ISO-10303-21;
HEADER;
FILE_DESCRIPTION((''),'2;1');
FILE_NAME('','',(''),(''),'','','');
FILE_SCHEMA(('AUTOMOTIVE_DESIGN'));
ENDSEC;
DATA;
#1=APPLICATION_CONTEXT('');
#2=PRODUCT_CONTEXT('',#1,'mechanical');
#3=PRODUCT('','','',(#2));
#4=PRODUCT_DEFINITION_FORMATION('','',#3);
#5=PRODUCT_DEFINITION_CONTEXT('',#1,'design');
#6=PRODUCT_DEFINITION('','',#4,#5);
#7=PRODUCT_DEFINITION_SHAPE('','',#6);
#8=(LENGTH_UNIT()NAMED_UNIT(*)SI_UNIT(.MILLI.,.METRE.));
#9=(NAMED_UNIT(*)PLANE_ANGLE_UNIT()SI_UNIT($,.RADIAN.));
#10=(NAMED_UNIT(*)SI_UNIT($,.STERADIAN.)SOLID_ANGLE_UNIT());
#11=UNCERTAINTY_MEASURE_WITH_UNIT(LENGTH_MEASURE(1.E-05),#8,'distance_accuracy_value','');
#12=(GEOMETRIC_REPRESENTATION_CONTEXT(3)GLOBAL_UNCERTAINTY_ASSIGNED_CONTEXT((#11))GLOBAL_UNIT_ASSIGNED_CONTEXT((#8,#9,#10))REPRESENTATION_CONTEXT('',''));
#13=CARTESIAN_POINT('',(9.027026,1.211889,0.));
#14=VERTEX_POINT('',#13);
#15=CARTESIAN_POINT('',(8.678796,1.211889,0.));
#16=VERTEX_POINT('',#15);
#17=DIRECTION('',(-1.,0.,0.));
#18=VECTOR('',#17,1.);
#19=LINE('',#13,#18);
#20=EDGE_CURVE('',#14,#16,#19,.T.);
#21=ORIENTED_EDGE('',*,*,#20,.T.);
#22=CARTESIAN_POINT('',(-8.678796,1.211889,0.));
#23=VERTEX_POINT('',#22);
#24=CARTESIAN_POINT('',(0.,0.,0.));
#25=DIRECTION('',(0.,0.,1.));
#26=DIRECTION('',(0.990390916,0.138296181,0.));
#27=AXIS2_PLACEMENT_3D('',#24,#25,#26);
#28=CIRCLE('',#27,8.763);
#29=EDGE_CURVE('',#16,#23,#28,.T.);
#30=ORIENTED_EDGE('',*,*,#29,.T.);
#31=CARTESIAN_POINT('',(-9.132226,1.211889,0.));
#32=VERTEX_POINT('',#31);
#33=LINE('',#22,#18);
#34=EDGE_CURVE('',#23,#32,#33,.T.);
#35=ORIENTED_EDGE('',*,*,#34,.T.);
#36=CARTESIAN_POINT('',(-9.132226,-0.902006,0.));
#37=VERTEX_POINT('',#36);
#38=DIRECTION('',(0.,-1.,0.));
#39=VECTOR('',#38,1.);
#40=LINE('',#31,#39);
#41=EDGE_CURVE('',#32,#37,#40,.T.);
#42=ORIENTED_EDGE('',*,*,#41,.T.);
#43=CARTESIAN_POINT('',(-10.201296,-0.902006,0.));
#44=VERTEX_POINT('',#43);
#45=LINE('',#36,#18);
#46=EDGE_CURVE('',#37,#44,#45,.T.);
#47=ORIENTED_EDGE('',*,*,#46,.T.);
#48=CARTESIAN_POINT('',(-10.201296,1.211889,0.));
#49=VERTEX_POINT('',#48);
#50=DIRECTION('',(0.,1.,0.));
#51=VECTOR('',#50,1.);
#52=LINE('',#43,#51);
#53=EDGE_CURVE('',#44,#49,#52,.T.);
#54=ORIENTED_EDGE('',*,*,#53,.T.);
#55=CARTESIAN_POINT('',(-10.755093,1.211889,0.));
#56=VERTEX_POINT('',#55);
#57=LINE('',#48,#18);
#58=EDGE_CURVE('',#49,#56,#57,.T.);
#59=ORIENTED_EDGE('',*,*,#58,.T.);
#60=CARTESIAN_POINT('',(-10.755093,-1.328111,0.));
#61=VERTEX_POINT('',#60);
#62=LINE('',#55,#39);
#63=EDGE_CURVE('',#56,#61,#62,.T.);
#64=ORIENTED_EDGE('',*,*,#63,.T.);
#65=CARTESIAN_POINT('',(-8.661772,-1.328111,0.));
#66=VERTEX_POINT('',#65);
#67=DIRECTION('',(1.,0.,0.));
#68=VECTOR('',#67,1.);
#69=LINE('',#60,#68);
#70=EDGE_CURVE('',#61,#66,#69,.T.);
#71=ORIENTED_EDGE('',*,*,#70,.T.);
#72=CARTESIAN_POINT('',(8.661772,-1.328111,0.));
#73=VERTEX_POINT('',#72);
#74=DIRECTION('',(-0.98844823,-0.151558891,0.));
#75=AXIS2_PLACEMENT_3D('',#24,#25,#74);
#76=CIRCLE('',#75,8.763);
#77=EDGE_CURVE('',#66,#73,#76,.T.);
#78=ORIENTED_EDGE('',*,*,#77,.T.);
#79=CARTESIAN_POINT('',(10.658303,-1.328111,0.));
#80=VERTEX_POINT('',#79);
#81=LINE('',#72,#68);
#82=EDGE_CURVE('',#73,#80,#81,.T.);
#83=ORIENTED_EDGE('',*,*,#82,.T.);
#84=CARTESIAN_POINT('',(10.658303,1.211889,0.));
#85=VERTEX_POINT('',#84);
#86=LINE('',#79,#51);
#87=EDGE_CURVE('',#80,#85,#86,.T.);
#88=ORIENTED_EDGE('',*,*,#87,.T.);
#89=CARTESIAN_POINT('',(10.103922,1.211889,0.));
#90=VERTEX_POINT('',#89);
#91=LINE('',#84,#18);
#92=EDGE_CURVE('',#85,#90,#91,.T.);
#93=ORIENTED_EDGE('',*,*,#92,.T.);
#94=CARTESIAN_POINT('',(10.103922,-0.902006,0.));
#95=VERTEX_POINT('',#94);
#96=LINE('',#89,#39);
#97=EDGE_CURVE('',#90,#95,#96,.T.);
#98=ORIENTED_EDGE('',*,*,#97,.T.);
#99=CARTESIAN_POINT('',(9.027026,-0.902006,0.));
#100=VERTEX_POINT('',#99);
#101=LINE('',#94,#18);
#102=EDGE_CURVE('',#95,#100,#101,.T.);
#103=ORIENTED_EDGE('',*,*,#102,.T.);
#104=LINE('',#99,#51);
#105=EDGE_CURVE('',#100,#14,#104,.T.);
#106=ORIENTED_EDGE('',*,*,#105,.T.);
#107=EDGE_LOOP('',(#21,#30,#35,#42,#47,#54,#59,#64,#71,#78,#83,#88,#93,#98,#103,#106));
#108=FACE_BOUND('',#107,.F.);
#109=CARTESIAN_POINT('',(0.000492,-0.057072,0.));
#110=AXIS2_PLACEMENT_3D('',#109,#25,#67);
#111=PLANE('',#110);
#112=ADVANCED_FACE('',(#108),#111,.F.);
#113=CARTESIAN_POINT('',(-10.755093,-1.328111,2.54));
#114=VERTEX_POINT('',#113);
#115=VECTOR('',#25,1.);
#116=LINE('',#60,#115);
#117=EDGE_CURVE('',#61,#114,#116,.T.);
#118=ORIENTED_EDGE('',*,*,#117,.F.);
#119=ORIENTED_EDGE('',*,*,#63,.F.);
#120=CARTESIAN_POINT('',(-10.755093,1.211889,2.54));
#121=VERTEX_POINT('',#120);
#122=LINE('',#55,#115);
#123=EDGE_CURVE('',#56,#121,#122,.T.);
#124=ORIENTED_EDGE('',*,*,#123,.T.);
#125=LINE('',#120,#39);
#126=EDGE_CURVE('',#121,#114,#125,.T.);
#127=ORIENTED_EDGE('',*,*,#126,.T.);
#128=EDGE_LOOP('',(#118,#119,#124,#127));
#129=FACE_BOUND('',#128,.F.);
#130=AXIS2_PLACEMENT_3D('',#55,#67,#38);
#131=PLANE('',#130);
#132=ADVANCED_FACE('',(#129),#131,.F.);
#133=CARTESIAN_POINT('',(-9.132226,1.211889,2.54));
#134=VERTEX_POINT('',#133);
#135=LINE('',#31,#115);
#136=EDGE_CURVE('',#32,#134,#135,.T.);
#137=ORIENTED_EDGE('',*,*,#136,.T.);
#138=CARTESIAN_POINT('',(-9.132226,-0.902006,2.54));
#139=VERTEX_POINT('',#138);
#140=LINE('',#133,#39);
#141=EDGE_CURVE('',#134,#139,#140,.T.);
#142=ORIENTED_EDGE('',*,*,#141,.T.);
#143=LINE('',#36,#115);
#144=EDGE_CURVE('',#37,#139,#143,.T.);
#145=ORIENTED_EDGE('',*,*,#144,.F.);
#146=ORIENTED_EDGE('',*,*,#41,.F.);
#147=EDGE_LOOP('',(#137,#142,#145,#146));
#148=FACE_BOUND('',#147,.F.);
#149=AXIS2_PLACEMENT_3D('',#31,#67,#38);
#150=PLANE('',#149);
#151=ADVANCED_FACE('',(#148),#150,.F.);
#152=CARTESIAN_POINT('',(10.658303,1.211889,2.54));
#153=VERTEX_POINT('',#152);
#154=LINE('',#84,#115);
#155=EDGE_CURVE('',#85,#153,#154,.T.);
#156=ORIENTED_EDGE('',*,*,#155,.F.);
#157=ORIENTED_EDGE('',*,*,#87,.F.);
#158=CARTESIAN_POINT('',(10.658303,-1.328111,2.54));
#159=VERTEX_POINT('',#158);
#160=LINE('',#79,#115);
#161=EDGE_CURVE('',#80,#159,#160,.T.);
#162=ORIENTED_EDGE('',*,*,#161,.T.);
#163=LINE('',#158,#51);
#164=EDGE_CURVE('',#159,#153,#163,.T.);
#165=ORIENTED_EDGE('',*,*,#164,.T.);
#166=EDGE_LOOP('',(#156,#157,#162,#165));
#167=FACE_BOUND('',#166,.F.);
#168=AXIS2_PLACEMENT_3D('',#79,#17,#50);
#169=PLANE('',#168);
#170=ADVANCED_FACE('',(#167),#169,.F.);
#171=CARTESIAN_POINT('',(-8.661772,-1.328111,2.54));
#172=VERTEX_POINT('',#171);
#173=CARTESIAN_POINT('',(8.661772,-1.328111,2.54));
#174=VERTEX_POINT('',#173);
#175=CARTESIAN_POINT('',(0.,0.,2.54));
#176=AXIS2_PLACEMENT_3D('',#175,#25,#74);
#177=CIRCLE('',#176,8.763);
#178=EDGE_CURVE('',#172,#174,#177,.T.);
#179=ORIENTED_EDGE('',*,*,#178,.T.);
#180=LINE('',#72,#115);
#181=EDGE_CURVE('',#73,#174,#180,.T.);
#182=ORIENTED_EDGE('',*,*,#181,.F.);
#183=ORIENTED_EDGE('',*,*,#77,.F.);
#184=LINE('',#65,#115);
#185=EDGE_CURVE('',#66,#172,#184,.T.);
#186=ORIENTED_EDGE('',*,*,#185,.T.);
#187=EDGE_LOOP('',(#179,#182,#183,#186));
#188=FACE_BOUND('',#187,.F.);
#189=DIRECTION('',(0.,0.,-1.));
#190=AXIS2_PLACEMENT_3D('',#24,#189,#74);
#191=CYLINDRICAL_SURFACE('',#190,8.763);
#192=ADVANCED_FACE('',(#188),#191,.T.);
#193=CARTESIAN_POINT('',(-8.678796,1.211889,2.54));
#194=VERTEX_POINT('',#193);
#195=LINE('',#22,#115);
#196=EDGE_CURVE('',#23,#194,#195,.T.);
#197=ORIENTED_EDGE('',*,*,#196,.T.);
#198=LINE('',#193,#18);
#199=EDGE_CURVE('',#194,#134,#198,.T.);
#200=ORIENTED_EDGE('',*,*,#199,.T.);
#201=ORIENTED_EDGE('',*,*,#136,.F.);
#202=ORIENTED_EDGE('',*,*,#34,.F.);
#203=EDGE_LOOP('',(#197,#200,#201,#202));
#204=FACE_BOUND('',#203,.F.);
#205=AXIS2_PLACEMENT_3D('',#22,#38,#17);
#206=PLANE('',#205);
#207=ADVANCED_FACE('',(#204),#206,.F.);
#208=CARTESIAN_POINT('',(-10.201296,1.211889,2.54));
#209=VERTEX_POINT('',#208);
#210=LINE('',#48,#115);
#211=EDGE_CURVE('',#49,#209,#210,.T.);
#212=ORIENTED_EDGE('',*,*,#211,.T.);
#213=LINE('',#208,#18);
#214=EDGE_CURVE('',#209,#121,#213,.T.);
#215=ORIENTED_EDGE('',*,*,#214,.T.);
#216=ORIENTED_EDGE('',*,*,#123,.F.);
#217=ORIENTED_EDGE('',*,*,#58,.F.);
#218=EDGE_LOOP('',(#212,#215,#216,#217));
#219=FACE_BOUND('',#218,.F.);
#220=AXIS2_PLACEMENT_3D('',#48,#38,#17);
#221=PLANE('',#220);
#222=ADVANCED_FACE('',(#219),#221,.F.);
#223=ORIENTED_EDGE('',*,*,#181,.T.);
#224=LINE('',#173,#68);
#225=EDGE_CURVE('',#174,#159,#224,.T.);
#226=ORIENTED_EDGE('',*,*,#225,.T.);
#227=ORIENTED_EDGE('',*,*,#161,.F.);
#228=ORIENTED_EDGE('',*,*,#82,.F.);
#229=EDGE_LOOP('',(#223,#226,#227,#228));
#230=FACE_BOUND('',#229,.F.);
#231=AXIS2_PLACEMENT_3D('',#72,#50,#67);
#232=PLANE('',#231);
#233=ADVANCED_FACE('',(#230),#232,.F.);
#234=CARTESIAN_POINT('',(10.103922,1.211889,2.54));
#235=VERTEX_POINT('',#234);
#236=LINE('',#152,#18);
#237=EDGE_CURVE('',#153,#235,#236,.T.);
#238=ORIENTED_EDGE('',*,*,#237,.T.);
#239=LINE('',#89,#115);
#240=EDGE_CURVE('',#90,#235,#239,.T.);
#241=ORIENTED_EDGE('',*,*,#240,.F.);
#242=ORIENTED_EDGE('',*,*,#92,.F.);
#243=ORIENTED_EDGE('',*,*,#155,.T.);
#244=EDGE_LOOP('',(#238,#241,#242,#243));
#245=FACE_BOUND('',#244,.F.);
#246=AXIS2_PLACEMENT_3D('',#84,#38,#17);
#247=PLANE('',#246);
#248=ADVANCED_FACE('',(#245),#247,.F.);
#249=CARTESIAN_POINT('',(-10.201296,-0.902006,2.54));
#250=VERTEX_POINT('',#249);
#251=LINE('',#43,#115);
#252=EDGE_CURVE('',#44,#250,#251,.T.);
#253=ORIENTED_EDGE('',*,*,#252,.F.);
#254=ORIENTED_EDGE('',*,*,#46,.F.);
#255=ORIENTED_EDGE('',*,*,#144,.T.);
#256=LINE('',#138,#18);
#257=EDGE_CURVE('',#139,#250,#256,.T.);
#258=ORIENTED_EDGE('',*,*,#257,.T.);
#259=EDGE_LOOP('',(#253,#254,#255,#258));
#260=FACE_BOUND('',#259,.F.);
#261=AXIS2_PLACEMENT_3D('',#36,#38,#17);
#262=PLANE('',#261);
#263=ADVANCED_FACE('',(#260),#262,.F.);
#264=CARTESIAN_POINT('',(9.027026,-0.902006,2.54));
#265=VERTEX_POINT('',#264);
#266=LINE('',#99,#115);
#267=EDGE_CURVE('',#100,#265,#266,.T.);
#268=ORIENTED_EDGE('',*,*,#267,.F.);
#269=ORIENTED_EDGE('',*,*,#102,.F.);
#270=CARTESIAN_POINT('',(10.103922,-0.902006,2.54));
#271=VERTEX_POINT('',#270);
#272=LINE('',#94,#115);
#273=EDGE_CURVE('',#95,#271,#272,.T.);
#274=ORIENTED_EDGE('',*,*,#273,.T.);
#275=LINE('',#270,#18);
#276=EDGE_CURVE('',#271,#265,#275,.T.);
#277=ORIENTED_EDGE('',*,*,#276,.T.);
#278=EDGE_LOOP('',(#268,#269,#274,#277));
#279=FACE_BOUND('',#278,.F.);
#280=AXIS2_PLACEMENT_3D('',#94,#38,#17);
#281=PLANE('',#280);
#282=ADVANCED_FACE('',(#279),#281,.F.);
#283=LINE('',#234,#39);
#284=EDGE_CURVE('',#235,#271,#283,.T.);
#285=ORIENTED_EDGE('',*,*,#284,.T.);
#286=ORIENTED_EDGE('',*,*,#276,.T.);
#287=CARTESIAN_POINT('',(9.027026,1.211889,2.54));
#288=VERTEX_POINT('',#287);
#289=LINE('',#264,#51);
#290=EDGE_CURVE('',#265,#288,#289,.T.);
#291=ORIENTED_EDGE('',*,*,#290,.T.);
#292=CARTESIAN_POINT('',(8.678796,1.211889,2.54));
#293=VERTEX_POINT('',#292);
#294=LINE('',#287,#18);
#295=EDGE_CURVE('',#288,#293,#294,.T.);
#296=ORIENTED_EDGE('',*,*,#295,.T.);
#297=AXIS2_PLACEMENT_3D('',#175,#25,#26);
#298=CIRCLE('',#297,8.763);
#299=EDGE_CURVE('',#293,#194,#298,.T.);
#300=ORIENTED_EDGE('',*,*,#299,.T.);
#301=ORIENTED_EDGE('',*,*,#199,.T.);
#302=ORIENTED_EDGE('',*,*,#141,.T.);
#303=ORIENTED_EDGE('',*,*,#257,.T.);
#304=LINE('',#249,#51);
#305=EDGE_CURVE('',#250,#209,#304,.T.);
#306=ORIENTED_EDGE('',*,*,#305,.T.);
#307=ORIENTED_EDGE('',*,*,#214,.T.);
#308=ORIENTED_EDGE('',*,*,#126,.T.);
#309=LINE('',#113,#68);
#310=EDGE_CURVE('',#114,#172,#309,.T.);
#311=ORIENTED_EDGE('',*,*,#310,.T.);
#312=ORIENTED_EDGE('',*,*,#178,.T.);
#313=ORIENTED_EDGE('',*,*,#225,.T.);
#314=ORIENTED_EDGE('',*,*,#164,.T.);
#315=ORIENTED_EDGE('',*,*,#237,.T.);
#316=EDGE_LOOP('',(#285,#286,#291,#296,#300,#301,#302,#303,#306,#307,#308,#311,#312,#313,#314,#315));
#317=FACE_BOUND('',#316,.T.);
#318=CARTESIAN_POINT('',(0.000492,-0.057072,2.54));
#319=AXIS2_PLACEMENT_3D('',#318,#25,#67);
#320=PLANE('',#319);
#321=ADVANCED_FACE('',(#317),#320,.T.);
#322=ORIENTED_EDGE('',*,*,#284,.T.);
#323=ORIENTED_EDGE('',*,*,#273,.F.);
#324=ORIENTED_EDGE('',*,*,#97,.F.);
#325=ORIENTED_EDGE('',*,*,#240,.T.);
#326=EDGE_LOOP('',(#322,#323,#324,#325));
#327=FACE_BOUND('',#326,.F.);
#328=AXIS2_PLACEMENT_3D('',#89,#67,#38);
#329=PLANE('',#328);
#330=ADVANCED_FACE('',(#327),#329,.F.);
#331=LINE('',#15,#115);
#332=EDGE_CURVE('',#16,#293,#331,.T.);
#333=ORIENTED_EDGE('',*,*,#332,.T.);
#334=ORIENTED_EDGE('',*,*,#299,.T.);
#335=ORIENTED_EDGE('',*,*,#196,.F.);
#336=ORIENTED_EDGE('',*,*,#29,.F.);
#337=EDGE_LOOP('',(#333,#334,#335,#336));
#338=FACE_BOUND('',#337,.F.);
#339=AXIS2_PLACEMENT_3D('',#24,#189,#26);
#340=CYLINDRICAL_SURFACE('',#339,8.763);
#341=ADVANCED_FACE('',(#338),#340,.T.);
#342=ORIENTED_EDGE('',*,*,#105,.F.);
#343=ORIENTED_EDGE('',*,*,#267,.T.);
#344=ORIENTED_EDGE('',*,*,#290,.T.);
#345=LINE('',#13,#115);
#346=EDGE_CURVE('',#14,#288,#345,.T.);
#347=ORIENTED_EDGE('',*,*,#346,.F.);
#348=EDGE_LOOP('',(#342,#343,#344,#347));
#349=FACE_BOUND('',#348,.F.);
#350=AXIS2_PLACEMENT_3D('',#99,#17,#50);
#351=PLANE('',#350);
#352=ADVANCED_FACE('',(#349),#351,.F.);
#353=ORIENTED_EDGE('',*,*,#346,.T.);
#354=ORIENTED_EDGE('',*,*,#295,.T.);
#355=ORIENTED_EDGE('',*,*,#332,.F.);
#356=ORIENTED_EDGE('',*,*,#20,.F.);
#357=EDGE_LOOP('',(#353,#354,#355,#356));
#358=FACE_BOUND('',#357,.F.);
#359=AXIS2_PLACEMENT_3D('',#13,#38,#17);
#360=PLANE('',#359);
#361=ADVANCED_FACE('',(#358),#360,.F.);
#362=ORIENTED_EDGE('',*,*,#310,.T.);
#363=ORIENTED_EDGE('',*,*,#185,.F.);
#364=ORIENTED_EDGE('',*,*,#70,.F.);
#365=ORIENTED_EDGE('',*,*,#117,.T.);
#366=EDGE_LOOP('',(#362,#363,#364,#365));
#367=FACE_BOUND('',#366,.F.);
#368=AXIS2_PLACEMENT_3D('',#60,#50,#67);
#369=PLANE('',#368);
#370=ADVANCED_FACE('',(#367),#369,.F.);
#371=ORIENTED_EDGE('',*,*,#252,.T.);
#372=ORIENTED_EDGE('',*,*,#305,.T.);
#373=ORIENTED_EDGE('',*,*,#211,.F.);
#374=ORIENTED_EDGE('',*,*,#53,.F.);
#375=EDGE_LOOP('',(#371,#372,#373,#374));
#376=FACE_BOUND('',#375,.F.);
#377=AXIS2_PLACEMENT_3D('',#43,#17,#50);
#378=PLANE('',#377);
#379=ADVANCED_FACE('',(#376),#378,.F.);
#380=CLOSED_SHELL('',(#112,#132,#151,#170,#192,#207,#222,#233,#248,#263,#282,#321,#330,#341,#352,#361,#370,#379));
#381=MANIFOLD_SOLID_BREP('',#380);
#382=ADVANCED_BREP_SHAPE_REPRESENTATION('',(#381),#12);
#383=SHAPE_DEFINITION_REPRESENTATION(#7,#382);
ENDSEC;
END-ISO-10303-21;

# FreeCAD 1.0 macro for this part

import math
import FreeCAD as App
import Part
import Sketcher
Q = App.Units.Quantity

doc = App.newDocument("Part")
params = doc.addObject("Spreadsheet::Sheet", "Params")
for row, (alias, value) in enumerate([
    ("sketch1_height", "0.1 in"),
    ("sketch1_radius", "0.345 in"),
    ("pad1_length", "0.1 in"),
], start=1):
    params.set(f"A{row}", alias)
    params.set(f"B{row}", "=" + value)
    params.setAlias(f"B{row}", alias)

body = doc.addObject("PartDesign::Body", "Body")

sketch1 = doc.addObject("Sketcher::SketchObject", "Sketch")
body.addObject(sketch1)
sketch1.AttachmentSupport = (doc.XY_Plane, [""])
sketch1.MapMode = "FlatFace"
sketch1.addGeometry(Part.ArcOfCircle(Part.Circle(App.Vector(0, 0, 0), App.Vector(0, 0, 1), 8.76), math.radians(8), math.radians(172)), False)
sketch1.addGeometry(Part.LineSegment(App.Vector(-8.68, 1.21, 0), App.Vector(-9.13, 1.21, 0)), False)
sketch1.addGeometry(Part.LineSegment(App.Vector(-9.13, 1.21, 0), App.Vector(-9.13, -0.9, 0)), False)
sketch1.addGeometry(Part.LineSegment(App.Vector(-9.13, -0.9, 0), App.Vector(-10.2, -0.9, 0)), False)
sketch1.addGeometry(Part.LineSegment(App.Vector(-10.2, -0.9, 0), App.Vector(-10.2, 1.21, 0)), False)
sketch1.addGeometry(Part.LineSegment(App.Vector(-10.2, 1.21, 0), App.Vector(-10.76, 1.21, 0)), False)
sketch1.addGeometry(Part.LineSegment(App.Vector(-10.76, 1.21, 0), App.Vector(-10.76, -1.33, 0)), False)
sketch1.addGeometry(Part.LineSegment(App.Vector(-10.76, -1.33, 0), App.Vector(-8.66, -1.33, 0)), False)
sketch1.addGeometry(Part.ArcOfCircle(Part.Circle(App.Vector(0, 0, 0), App.Vector(0, 0, 1), 8.76), math.radians(-171), math.radians(-9)), False)
sketch1.addGeometry(Part.LineSegment(App.Vector(8.66, -1.33, 0), App.Vector(10.66, -1.33, 0)), False)
sketch1.addGeometry(Part.LineSegment(App.Vector(10.66, -1.33, 0), App.Vector(10.66, 1.21, 0)), False)
sketch1.addGeometry(Part.LineSegment(App.Vector(10.66, 1.21, 0), App.Vector(10.1, 1.21, 0)), False)
sketch1.addGeometry(Part.LineSegment(App.Vector(10.1, 1.21, 0), App.Vector(10.1, -0.9, 0)), False)
sketch1.addGeometry(Part.LineSegment(App.Vector(10.1, -0.9, 0), App.Vector(9.03, -0.9, 0)), False)
sketch1.addGeometry(Part.LineSegment(App.Vector(9.03, -0.9, 0), App.Vector(9.03, 1.21, 0)), False)
sketch1.addGeometry(Part.LineSegment(App.Vector(9.03, 1.21, 0), App.Vector(8.68, 1.21, 0)), False)
sketch1.addConstraint(Sketcher.Constraint("Coincident", 0, 2, 1, 1))
sketch1.addConstraint(Sketcher.Constraint("Coincident", 1, 2, 2, 1))
sketch1.addConstraint(Sketcher.Constraint("Coincident", 2, 2, 3, 1))
sketch1.addConstraint(Sketcher.Constraint("Coincident", 3, 2, 4, 1))
sketch1.addConstraint(Sketcher.Constraint("Coincident", 4, 2, 5, 1))
sketch1.addConstraint(Sketcher.Constraint("Coincident", 5, 2, 6, 1))
sketch1.addConstraint(Sketcher.Constraint("Coincident", 6, 2, 7, 1))
sketch1.addConstraint(Sketcher.Constraint("Coincident", 7, 2, 8, 1))
sketch1.addConstraint(Sketcher.Constraint("Coincident", 8, 2, 9, 1))
sketch1.addConstraint(Sketcher.Constraint("Coincident", 9, 2, 10, 1))
sketch1.addConstraint(Sketcher.Constraint("Coincident", 10, 2, 11, 1))
sketch1.addConstraint(Sketcher.Constraint("Coincident", 11, 2, 12, 1))
sketch1.addConstraint(Sketcher.Constraint("Coincident", 12, 2, 13, 1))
sketch1.addConstraint(Sketcher.Constraint("Coincident", 13, 2, 14, 1))
sketch1.addConstraint(Sketcher.Constraint("Coincident", 14, 2, 15, 1))
sketch1.addConstraint(Sketcher.Constraint("Coincident", 15, 2, 0, 1))
sketch1.addConstraint(Sketcher.Constraint("Horizontal", 1))
sketch1.addConstraint(Sketcher.Constraint("Vertical", 2))
sketch1.addConstraint(Sketcher.Constraint("Horizontal", 3))
sketch1.addConstraint(Sketcher.Constraint("Vertical", 4))
sketch1.addConstraint(Sketcher.Constraint("Horizontal", 5))
sketch1.addConstraint(Sketcher.Constraint("Vertical", 6))
sketch1.addConstraint(Sketcher.Constraint("Horizontal", 7))
sketch1.addConstraint(Sketcher.Constraint("Horizontal", 9))
sketch1.addConstraint(Sketcher.Constraint("Vertical", 10))
sketch1.addConstraint(Sketcher.Constraint("Horizontal", 11))
sketch1.addConstraint(Sketcher.Constraint("Vertical", 12))
sketch1.addConstraint(Sketcher.Constraint("Horizontal", 13))
sketch1.addConstraint(Sketcher.Constraint("Vertical", 14))
sketch1.addConstraint(Sketcher.Constraint("Horizontal", 15))
sketch1.addConstraint(Sketcher.Constraint("Coincident", 0, 3, -1, 1))
sketch1.addConstraint(Sketcher.Constraint("Coincident", 8, 3, -1, 1))
sketch1.addConstraint(Sketcher.Constraint("Equal", 0, 8))
sketch1.addConstraint(Sketcher.Constraint("Horizontal", 1, 2, 4, 2))
sketch1.addConstraint(Sketcher.Constraint("Horizontal", 7, 2, 8, 2))
sketch1.addConstraint(Sketcher.Constraint("Horizontal", 5, 2, 10, 2))
sketch1.addConstraint(Sketcher.Constraint("Horizontal", 3, 2, 12, 2))
sketch1.addConstraint(Sketcher.Constraint("Horizontal", 11, 2, 14, 2))
sketch1.addConstraint(Sketcher.Constraint("DistanceY", 6, 2, 6, 1, Q("0.1 in")))
sketch1.addConstraint(Sketcher.Constraint("Radius", 0, Q("0.345 in")))
sketch1.addConstraint(Sketcher.Constraint("DistanceX", 1, 2, 1, 1, Q("0.45343 mm")))
sketch1.addConstraint(Sketcher.Constraint("DistanceX", 3, 2, 3, 1, Q("1.06907 mm")))
sketch1.addConstraint(Sketcher.Constraint("DistanceX", 7, 1, 7, 2, Q("2.093321 mm")))
sketch1.addConstraint(Sketcher.Constraint("DistanceX", 9, 1, 9, 2, Q("1.996531 mm")))
sketch1.addConstraint(Sketcher.Constraint("DistanceX", 11, 2, 11, 1, Q("0.554381 mm")))
sketch1.addConstraint(Sketcher.Constraint("DistanceX", 15, 2, 15, 1, Q("0.34823 mm")))
sketch1.addConstraint(Sketcher.Constraint("DistanceX", 5, 2, 5, 1, Q("0.553797 mm")))
sketch1.addConstraint(Sketcher.Constraint("DistanceY", 2, 2, 2, 1, Q("2.113895 mm")))
sketch1.setExpression("Constraints[38]", "Params.sketch1_height")
sketch1.setExpression("Constraints[39]", "Params.sketch1_radius")
pad1 = doc.addObject("PartDesign::Pad", "Pad")
body.addObject(pad1)
pad1.Profile = sketch1
pad1.setExpression("Length", "Params.pad1_length")

doc.recompute()
